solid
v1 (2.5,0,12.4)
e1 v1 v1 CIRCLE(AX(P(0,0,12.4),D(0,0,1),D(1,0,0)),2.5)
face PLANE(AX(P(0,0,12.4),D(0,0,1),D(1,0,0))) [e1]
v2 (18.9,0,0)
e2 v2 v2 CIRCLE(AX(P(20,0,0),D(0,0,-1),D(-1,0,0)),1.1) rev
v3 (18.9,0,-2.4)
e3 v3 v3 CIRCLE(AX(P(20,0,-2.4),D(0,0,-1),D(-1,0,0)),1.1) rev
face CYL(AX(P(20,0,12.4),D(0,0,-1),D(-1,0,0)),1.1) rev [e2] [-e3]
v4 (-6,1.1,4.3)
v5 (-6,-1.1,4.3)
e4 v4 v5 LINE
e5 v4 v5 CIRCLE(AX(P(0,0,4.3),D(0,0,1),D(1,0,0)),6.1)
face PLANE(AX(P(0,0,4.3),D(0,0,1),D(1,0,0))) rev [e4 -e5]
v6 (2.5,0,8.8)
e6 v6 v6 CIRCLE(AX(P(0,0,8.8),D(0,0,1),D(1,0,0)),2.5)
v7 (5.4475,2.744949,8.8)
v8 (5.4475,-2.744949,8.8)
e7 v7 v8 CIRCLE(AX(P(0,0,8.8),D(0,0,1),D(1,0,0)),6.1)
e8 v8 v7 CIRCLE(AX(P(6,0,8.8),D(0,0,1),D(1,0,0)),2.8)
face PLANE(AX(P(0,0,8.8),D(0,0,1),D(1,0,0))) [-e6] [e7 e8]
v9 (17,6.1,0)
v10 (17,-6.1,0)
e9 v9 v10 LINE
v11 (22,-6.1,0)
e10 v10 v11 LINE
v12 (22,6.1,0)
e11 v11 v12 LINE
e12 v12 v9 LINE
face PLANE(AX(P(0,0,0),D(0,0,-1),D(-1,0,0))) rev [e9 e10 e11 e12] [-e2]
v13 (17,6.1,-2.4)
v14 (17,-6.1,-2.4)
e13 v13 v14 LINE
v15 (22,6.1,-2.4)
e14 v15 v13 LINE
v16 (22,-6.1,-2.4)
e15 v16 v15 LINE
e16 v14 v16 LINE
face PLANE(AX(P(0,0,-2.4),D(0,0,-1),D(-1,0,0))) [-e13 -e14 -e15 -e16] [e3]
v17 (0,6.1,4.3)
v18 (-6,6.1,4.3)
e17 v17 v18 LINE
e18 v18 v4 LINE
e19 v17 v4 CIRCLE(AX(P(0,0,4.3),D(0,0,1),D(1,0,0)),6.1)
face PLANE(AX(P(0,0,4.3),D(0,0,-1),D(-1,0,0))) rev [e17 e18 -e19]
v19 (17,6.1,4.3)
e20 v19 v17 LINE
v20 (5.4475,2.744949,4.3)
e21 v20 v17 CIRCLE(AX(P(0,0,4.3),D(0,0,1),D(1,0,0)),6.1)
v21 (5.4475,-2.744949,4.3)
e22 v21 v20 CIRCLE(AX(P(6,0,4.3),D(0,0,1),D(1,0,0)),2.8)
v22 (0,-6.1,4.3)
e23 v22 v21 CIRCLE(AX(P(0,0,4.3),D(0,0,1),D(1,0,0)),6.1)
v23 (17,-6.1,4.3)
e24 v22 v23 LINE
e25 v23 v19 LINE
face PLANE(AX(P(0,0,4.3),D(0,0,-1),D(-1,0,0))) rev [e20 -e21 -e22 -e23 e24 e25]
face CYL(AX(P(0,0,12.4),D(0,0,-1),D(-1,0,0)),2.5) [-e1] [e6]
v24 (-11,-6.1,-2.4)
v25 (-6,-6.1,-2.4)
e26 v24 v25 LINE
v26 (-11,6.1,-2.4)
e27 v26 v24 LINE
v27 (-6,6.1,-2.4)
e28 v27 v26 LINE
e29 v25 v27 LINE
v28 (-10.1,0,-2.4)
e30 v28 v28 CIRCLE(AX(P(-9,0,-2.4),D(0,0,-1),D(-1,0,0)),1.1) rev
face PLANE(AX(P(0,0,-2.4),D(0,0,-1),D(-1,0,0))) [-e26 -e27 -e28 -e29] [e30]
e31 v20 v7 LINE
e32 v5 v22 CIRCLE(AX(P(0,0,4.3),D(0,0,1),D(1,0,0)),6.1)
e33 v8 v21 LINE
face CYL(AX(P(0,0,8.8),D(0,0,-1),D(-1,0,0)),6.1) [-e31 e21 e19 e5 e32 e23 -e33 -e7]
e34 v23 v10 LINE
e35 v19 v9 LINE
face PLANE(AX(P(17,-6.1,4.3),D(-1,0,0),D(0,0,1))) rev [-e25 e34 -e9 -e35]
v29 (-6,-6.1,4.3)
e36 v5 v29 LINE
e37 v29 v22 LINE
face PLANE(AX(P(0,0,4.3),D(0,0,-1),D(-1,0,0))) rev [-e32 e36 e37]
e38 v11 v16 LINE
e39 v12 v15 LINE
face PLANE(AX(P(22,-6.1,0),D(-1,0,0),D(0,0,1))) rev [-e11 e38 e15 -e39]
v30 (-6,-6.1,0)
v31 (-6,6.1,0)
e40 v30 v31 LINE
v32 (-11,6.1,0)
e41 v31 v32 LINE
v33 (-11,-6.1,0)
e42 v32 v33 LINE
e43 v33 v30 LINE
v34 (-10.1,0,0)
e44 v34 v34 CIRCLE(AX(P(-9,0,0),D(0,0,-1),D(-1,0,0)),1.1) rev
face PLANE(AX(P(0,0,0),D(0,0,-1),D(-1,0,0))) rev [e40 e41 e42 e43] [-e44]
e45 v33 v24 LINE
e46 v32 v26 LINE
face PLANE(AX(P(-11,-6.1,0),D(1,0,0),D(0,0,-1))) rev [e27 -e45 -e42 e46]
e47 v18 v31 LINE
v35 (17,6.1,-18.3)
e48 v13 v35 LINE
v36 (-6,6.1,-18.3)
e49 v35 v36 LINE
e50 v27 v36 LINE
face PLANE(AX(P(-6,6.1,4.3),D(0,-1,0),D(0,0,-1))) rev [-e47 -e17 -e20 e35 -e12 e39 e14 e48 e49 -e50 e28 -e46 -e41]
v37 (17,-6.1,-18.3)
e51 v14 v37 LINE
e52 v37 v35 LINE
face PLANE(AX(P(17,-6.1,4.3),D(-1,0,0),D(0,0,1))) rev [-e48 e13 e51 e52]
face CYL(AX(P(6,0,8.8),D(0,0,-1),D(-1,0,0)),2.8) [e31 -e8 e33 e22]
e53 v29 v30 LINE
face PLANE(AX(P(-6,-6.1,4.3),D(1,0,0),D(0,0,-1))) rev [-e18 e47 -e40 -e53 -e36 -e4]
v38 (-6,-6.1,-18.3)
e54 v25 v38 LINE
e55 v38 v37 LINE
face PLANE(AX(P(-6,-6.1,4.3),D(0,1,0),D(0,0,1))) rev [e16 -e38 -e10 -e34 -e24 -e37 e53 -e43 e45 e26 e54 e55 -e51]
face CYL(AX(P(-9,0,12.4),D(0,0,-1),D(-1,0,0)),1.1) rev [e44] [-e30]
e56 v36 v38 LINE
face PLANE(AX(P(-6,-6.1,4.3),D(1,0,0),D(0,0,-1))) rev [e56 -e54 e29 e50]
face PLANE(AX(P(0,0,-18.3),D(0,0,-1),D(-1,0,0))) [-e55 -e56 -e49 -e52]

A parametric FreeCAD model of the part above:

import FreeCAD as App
import Part
import Sketcher
from FreeCAD import Vector
Q = App.Units.Quantity

doc = App.newDocument("Part")
params = doc.addObject("Spreadsheet::Sheet", "Params")
for row, (alias, value) in enumerate([
    ("sketch1_width", "23 mm"),
    ("sketch1_height", "12.2 mm"),
    ("pad1_length", "22.6 mm"),
    ("sketch2_width", "33 mm"),
    ("sketch2_height", "12.2 mm"),
    ("pad2_length", "2.4 mm"),
    ("sketch3_diameter", "12.2 mm"),
    ("pad3_length", "4.5 mm"),
    ("sketch4_diameter", "5.6 mm"),
    ("pad4_length", "4.5 mm"),
    ("sketch5_diameter", "5 mm"),
    ("pad5_length", "3.6 mm"),
    ("sketch6_diameter", "2.2 mm"),
], start=1):
    params.set(f"A{row}", alias)
    params.set(f"B{row}", "=" + value)
    params.setAlias(f"B{row}", alias)

body = doc.addObject("PartDesign::Body", "Body")

# Sketch on XY plane
sketch1 = doc.addObject("Sketcher::SketchObject", "Sketch")
body.addObject(sketch1)
sketch1.AttachmentSupport = (doc.XY_Plane, [""])
sketch1.MapMode = "FlatFace"
sketch1.AttachmentOffset = App.Placement(Vector(0, 0, -18.3), App.Rotation())
sketch1.addGeometry(Part.LineSegment(Vector(-6, 6, 0), Vector(-6, -6, 0)), False)
sketch1.addGeometry(Part.LineSegment(Vector(-6, -6, 0), Vector(17, -6, 0)), False)
sketch1.addGeometry(Part.LineSegment(Vector(17, -6, 0), Vector(17, 6, 0)), False)
sketch1.addGeometry(Part.LineSegment(Vector(17, 6, 0), Vector(-6, 6, 0)), False)
sketch1.addConstraint(Sketcher.Constraint("Coincident", 0, 2, 1, 1))
sketch1.addConstraint(Sketcher.Constraint("Coincident", 1, 2, 2, 1))
sketch1.addConstraint(Sketcher.Constraint("Coincident", 2, 2, 3, 1))
sketch1.addConstraint(Sketcher.Constraint("Coincident", 3, 2, 0, 1))
sketch1.addConstraint(Sketcher.Constraint("Vertical", 0))
sketch1.addConstraint(Sketcher.Constraint("Horizontal", 1))
sketch1.addConstraint(Sketcher.Constraint("Vertical", 2))
sketch1.addConstraint(Sketcher.Constraint("Horizontal", 3))
sketch1.addConstraint(Sketcher.Constraint("DistanceX", 1, 1, 1, 2, Q("23 mm")))
sketch1.addConstraint(Sketcher.Constraint("DistanceY", 0, 2, 0, 1, Q("12.2 mm")))
sketch1.addConstraint(Sketcher.Constraint("DistanceX", 0, 2, -1, 1, Q("6 mm")))
sketch1.addConstraint(Sketcher.Constraint("DistanceY", 0, 2, -1, 1, Q("6.1 mm")))
sketch1.setExpression("Constraints[8]", "Params.sketch1_width")
sketch1.setExpression("Constraints[9]", "Params.sketch1_height")
pad1 = doc.addObject("PartDesign::Pad", "Pad")
body.addObject(pad1)
pad1.Profile = sketch1
pad1.setExpression("Length", "Params.pad1_length")

# Sketch on XY plane
sketch2 = doc.addObject("Sketcher::SketchObject", "Sketch001")
body.addObject(sketch2)
sketch2.AttachmentSupport = (doc.XY_Plane, [""])
sketch2.MapMode = "FlatFace"
sketch2.AttachmentOffset = App.Placement(Vector(0, 0, -2.4), App.Rotation())
sketch2.addGeometry(Part.LineSegment(Vector(-11, 6, 0), Vector(-11, -6, 0)), False)
sketch2.addGeometry(Part.LineSegment(Vector(-11, -6, 0), Vector(22, -6, 0)), False)
sketch2.addGeometry(Part.LineSegment(Vector(22, -6, 0), Vector(22, 6, 0)), False)
sketch2.addGeometry(Part.LineSegment(Vector(22, 6, 0), Vector(-11, 6, 0)), False)
sketch2.addConstraint(Sketcher.Constraint("Coincident", 0, 2, 1, 1))
sketch2.addConstraint(Sketcher.Constraint("Coincident", 1, 2, 2, 1))
sketch2.addConstraint(Sketcher.Constraint("Coincident", 2, 2, 3, 1))
sketch2.addConstraint(Sketcher.Constraint("Coincident", 3, 2, 0, 1))
sketch2.addConstraint(Sketcher.Constraint("Vertical", 0))
sketch2.addConstraint(Sketcher.Constraint("Horizontal", 1))
sketch2.addConstraint(Sketcher.Constraint("Vertical", 2))
sketch2.addConstraint(Sketcher.Constraint("Horizontal", 3))
sketch2.addConstraint(Sketcher.Constraint("DistanceX", 1, 1, 1, 2, Q("33 mm")))
sketch2.addConstraint(Sketcher.Constraint("DistanceY", 0, 2, 0, 1, Q("12.2 mm")))
sketch2.addConstraint(Sketcher.Constraint("DistanceX", 0, 2, -1, 1, Q("11 mm")))
sketch2.addConstraint(Sketcher.Constraint("DistanceY", 0, 2, -1, 1, Q("6.1 mm")))
sketch2.setExpression("Constraints[8]", "Params.sketch2_width")
sketch2.setExpression("Constraints[9]", "Params.sketch2_height")
pad2 = doc.addObject("PartDesign::Pad", "Pad001")
body.addObject(pad2)
pad2.Profile = sketch2
pad2.setExpression("Length", "Params.pad2_length")

# Sketch on XY plane
sketch3 = doc.addObject("Sketcher::SketchObject", "Sketch002")
body.addObject(sketch3)
sketch3.AttachmentSupport = (doc.XY_Plane, [""])
sketch3.MapMode = "FlatFace"
sketch3.AttachmentOffset = App.Placement(Vector(0, 0, 4.3), App.Rotation())
sketch3.addGeometry(Part.Circle(Vector(0, 0, 0), Vector(0, 0, 1), 6), False)
sketch3.addConstraint(Sketcher.Constraint("Coincident", 0, 3, -1, 1))
sketch3.addConstraint(Sketcher.Constraint("Diameter", 0, Q("12.2 mm")))
sketch3.setExpression("Constraints[1]", "Params.sketch3_diameter")
pad3 = doc.addObject("PartDesign::Pad", "Pad002")
body.addObject(pad3)
pad3.Profile = sketch3
pad3.setExpression("Length", "Params.pad3_length")

# Sketch on XY plane
sketch4 = doc.addObject("Sketcher::SketchObject", "Sketch003")
body.addObject(sketch4)
sketch4.AttachmentSupport = (doc.XY_Plane, [""])
sketch4.MapMode = "FlatFace"
sketch4.AttachmentOffset = App.Placement(Vector(0, 0, 4.3), App.Rotation())
sketch4.addGeometry(Part.Circle(Vector(6, 0, 0), Vector(0, 0, 1), 2.8), False)
sketch4.addConstraint(Sketcher.Constraint("PointOnObject", 0, 3, -1))
sketch4.addConstraint(Sketcher.Constraint("Diameter", 0, Q("5.6 mm")))
sketch4.addConstraint(Sketcher.Constraint("DistanceX", -1, 1, 0, 3, Q("6 mm")))
sketch4.setExpression("Constraints[1]", "Params.sketch4_diameter")
pad4 = doc.addObject("PartDesign::Pad", "Pad003")
body.addObject(pad4)
pad4.Profile = sketch4
pad4.setExpression("Length", "Params.pad4_length")

# Sketch on XY plane
sketch5 = doc.addObject("Sketcher::SketchObject", "Sketch004")
body.addObject(sketch5)
sketch5.AttachmentSupport = (doc.XY_Plane, [""])
sketch5.MapMode = "FlatFace"
sketch5.AttachmentOffset = App.Placement(Vector(0, 0, 8.8), App.Rotation())
sketch5.addGeometry(Part.Circle(Vector(0, 0, 0), Vector(0, 0, 1), 2.5), False)
sketch5.addConstraint(Sketcher.Constraint("Coincident", 0, 3, -1, 1))
sketch5.addConstraint(Sketcher.Constraint("Diameter", 0, Q("5 mm")))
sketch5.setExpression("Constraints[1]", "Params.sketch5_diameter")
pad5 = doc.addObject("PartDesign::Pad", "Pad004")
body.addObject(pad5)
pad5.Profile = sketch5
pad5.setExpression("Length", "Params.pad5_length")

# Sketch on XY plane
sketch6 = doc.addObject("Sketcher::SketchObject", "Sketch005")
body.addObject(sketch6)
sketch6.AttachmentSupport = (doc.XY_Plane, [""])
sketch6.MapMode = "FlatFace"
sketch6.AttachmentOffset = App.Placement(Vector(0, 0, -50), App.Rotation())
sketch6.addGeometry(Part.Circle(Vector(-9, 0, 0), Vector(0, 0, 1), 1.1), False)
sketch6.addGeometry(Part.Circle(Vector(20, 0, 0), Vector(0, 0, 1), 1.1), False)
sketch6.addConstraint(Sketcher.Constraint("Equal", 0, 1))
sketch6.addConstraint(Sketcher.Constraint("PointOnObject", 0, 3, -1))
sketch6.addConstraint(Sketcher.Constraint("PointOnObject", 1, 3, -1))
sketch6.addConstraint(Sketcher.Constraint("Diameter", 0, Q("2.2 mm")))
sketch6.addConstraint(Sketcher.Constraint("DistanceX", 0, 3, -1, 1, Q("9 mm")))
sketch6.addConstraint(Sketcher.Constraint("DistanceX", -1, 1, 1, 3, Q("20 mm")))
sketch6.setExpression("Constraints[3]", "Params.sketch6_diameter")
pocket1 = doc.addObject("PartDesign::Pocket", "Pocket")
body.addObject(pocket1)
pocket1.Profile = sketch6
pocket1.Type = "ThroughAll"
pocket1.Reversed = True

doc.recompute()
